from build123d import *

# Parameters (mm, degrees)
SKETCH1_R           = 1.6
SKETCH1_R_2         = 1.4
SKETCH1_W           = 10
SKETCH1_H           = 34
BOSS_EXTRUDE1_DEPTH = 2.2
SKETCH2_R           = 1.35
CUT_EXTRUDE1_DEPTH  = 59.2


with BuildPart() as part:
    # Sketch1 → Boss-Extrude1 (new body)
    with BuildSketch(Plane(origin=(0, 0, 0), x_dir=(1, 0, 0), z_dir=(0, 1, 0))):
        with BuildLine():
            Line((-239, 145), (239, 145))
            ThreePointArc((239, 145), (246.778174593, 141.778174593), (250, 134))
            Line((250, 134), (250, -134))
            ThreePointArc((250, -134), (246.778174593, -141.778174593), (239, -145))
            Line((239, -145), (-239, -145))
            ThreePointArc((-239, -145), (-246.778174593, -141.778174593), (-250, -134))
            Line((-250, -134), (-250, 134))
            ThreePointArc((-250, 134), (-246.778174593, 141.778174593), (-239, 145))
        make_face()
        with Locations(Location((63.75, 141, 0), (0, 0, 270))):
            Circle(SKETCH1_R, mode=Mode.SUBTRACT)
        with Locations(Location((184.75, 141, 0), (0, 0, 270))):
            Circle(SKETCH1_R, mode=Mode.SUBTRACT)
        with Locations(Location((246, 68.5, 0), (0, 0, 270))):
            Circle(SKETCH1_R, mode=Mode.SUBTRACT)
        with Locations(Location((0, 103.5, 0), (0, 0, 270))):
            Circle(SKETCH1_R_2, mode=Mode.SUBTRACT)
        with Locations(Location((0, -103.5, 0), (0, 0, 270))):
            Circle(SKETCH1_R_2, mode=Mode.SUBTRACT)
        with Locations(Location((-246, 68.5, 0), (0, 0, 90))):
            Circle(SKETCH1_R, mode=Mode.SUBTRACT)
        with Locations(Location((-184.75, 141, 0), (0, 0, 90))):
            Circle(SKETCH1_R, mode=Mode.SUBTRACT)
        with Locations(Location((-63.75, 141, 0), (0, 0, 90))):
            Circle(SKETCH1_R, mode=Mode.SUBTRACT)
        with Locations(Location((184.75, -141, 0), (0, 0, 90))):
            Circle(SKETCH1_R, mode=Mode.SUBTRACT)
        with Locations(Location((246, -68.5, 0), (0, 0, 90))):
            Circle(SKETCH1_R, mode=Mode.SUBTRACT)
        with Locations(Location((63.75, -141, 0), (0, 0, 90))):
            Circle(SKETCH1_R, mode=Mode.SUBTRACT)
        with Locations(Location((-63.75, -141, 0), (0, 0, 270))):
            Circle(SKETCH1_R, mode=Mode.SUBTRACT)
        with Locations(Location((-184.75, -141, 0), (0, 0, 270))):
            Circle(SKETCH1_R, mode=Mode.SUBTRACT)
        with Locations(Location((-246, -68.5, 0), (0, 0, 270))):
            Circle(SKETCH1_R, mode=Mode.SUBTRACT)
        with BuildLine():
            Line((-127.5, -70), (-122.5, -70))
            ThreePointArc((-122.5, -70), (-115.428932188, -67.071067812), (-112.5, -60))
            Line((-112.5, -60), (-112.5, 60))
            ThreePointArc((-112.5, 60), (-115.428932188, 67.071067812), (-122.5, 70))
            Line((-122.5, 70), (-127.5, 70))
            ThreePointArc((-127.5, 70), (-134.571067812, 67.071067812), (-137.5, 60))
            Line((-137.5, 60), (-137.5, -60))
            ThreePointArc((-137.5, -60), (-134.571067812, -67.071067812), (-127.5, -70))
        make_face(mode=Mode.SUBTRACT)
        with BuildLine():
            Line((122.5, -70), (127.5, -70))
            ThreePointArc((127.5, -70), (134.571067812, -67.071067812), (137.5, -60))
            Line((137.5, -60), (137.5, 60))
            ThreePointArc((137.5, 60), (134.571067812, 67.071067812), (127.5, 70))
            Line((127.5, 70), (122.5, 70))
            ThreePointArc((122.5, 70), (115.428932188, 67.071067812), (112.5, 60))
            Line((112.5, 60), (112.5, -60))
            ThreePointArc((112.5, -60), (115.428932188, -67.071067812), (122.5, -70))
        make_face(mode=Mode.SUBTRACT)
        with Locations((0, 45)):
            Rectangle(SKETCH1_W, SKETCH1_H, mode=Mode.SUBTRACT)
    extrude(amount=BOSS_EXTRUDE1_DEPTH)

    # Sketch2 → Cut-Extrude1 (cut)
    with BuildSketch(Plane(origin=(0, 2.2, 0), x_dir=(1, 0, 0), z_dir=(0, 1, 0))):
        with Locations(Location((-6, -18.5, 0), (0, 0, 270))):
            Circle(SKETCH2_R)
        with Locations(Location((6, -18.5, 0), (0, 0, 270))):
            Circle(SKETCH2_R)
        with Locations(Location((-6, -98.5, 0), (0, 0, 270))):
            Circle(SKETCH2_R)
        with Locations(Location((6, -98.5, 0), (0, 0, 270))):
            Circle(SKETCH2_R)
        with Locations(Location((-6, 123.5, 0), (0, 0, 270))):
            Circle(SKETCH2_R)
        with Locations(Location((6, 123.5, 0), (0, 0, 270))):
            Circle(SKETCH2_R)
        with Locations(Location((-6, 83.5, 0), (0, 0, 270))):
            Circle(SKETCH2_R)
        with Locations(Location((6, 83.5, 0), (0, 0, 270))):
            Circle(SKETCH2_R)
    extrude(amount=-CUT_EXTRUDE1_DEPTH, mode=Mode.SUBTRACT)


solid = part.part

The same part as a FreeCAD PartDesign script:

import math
import FreeCAD as App
import Part
import Sketcher
from FreeCAD import Vector


def add_polygon(sketch, points):
    """Adds a closed chain of lines whose ends are joined by coincident constraints."""
    first, n = sketch.GeometryCount, len(points)
    for a, b in zip(points, points[1:] + points[:1]):
        sketch.addGeometry(Part.LineSegment(App.Vector(*a, 0), App.Vector(*b, 0)), False)
    for i in range(n):
        sketch.addConstraint(Sketcher.Constraint("Coincident", first + i, 2, first + (i + 1) % n, 1))

doc = App.newDocument("Part")
body = doc.addObject("PartDesign::Body", "Body")

sketch1 = doc.addObject("Sketcher::SketchObject", "Sketch")
body.addObject(sketch1)
sketch1.AttachmentSupport = (doc.XZ_Plane, [""])
sketch1.MapMode = "FlatFace"
sketch1.addGeometry(Part.LineSegment(Vector(239, -145, 0), Vector(-239, -145, 0)), False)
sketch1.addGeometry(Part.ArcOfCircle(Part.Circle(Vector(-239, -134, 0), Vector(0, 0, 1), 11), math.radians(180), math.radians(270)), False)
sketch1.addGeometry(Part.LineSegment(Vector(-250, -134, 0), Vector(-250, 134, 0)), False)
sketch1.addGeometry(Part.ArcOfCircle(Part.Circle(Vector(-239, 134, 0), Vector(0, 0, 1), 11), math.radians(90), math.radians(180)), False)
sketch1.addGeometry(Part.LineSegment(Vector(-239, 145, 0), Vector(239, 145, 0)), False)
sketch1.addGeometry(Part.ArcOfCircle(Part.Circle(Vector(239, 134, 0), Vector(0, 0, 1), 11), math.radians(0), math.radians(90)), False)
sketch1.addGeometry(Part.LineSegment(Vector(250, 134, 0), Vector(250, -134, 0)), False)
sketch1.addGeometry(Part.ArcOfCircle(Part.Circle(Vector(239, -134, 0), Vector(0, 0, 1), 11), math.radians(-90), math.radians(0)), False)
sketch1.addGeometry(Part.Circle(Vector(184.75, 141, 0), Vector(0, 0, 1), 1.6), False)
sketch1.addGeometry(Part.Circle(Vector(63.75, 141, 0), Vector(0, 0, 1), 1.6), False)
sketch1.addGeometry(Part.Circle(Vector(246, 68.5, 0), Vector(0, 0, 1), 1.6), False)
sketch1.addGeometry(Part.Circle(Vector(-63.75, 141, 0), Vector(0, 0, 1), 1.6), False)
sketch1.addGeometry(Part.Circle(Vector(0, 103.5, 0), Vector(0, 0, 1), 1.4), False)
sketch1.addGeometry(Part.Circle(Vector(-184.75, 141, 0), Vector(0, 0, 1), 1.6), False)
sketch1.addGeometry(Part.Circle(Vector(-246, 68.5, 0), Vector(0, 0, 1), 1.6), False)
sketch1.addGeometry(Part.ArcOfCircle(Part.Circle(Vector(122.5, 60, 0), Vector(0, 0, 1), 10), math.radians(90), math.radians(180)), False)
sketch1.addGeometry(Part.LineSegment(Vector(112.5, 60, 0), Vector(112.5, -60, 0)), False)
sketch1.addGeometry(Part.ArcOfCircle(Part.Circle(Vector(122.5, -60, 0), Vector(0, 0, 1), 10), math.radians(180), math.radians(270)), False)
sketch1.addGeometry(Part.LineSegment(Vector(122.5, -70, 0), Vector(127.5, -70, 0)), False)
sketch1.addGeometry(Part.ArcOfCircle(Part.Circle(Vector(127.5, -60, 0), Vector(0, 0, 1), 10), math.radians(-90), math.radians(0)), False)
sketch1.addGeometry(Part.LineSegment(Vector(137.5, -60, 0), Vector(137.5, 60, 0)), False)
sketch1.addGeometry(Part.ArcOfCircle(Part.Circle(Vector(127.5, 60, 0), Vector(0, 0, 1), 10), math.radians(0), math.radians(90)), False)
sketch1.addGeometry(Part.LineSegment(Vector(127.5, 70, 0), Vector(122.5, 70, 0)), False)
sketch1.addGeometry(Part.Circle(Vector(246, -68.5, 0), Vector(0, 0, 1), 1.6), False)
sketch1.addGeometry(Part.Circle(Vector(184.75, -141, 0), Vector(0, 0, 1), 1.6), False)
sketch1.addGeometry(Part.Circle(Vector(63.75, -141, 0), Vector(0, 0, 1), 1.6), False)
add_polygon(sketch1, [(-5, -28), (-5, -62), (5, -62), (5, -28)])
sketch1.addGeometry(Part.ArcOfCircle(Part.Circle(Vector(-127.5, 60, 0), Vector(0, 0, 1), 10), math.radians(90), math.radians(180)), False)
sketch1.addGeometry(Part.LineSegment(Vector(-137.5, 60, 0), Vector(-137.5, -60, 0)), False)
sketch1.addGeometry(Part.ArcOfCircle(Part.Circle(Vector(-127.5, -60, 0), Vector(0, 0, 1), 10), math.radians(180), math.radians(270)), False)
sketch1.addGeometry(Part.LineSegment(Vector(-127.5, -70, 0), Vector(-122.5, -70, 0)), False)
sketch1.addGeometry(Part.ArcOfCircle(Part.Circle(Vector(-122.5, -60, 0), Vector(0, 0, 1), 10), math.radians(-90), math.radians(0)), False)
sketch1.addGeometry(Part.LineSegment(Vector(-112.5, -60, 0), Vector(-112.5, 60, 0)), False)
sketch1.addGeometry(Part.ArcOfCircle(Part.Circle(Vector(-122.5, 60, 0), Vector(0, 0, 1), 10), math.radians(0), math.radians(90)), False)
sketch1.addGeometry(Part.LineSegment(Vector(-122.5, 70, 0), Vector(-127.5, 70, 0)), False)
sketch1.addGeometry(Part.Circle(Vector(-246, -68.5, 0), Vector(0, 0, 1), 1.6), False)
sketch1.addGeometry(Part.Circle(Vector(0, -103.5, 0), Vector(0, 0, 1), 1.4), False)
sketch1.addGeometry(Part.Circle(Vector(-63.75, -141, 0), Vector(0, 0, 1), 1.6), False)
sketch1.addGeometry(Part.Circle(Vector(-184.75, -141, 0), Vector(0, 0, 1), 1.6), False)
sketch1.addConstraint([
    Sketcher.Constraint("Tangent", 0, 2, 1, 2),
    Sketcher.Constraint("Tangent", 1, 1, 2, 1),
    Sketcher.Constraint("Tangent", 2, 2, 3, 2),
    Sketcher.Constraint("Tangent", 3, 1, 4, 1),
    Sketcher.Constraint("Tangent", 4, 2, 5, 2),
    Sketcher.Constraint("Tangent", 5, 1, 6, 1),
    Sketcher.Constraint("Tangent", 6, 2, 7, 2),
    Sketcher.Constraint("Tangent", 7, 1, 0, 1),
    Sketcher.Constraint("Tangent", 15, 2, 16, 1),
    Sketcher.Constraint("Tangent", 16, 2, 17, 1),
    Sketcher.Constraint("Tangent", 17, 2, 18, 1),
    Sketcher.Constraint("Tangent", 18, 2, 19, 1),
    Sketcher.Constraint("Tangent", 19, 2, 20, 1),
    Sketcher.Constraint("Tangent", 20, 2, 21, 1),
    Sketcher.Constraint("Tangent", 21, 2, 22, 1),
    Sketcher.Constraint("Tangent", 22, 2, 15, 1),
    Sketcher.Constraint("Tangent", 30, 2, 31, 1),
    Sketcher.Constraint("Tangent", 31, 2, 32, 1),
    Sketcher.Constraint("Tangent", 32, 2, 33, 1),
    Sketcher.Constraint("Tangent", 33, 2, 34, 1),
    Sketcher.Constraint("Tangent", 34, 2, 35, 1),
    Sketcher.Constraint("Tangent", 35, 2, 36, 1),
    Sketcher.Constraint("Tangent", 36, 2, 37, 1),
    Sketcher.Constraint("Tangent", 37, 2, 30, 1),
    Sketcher.Constraint("Horizontal", 0),
    Sketcher.Constraint("Vertical", 2),
    Sketcher.Constraint("Horizontal", 4),
    Sketcher.Constraint("Vertical", 6),
    Sketcher.Constraint("Vertical", 16),
    Sketcher.Constraint("Horizontal", 18),
    Sketcher.Constraint("Vertical", 20),
    Sketcher.Constraint("Horizontal", 22),
    Sketcher.Constraint("Vertical", 26),
    Sketcher.Constraint("Horizontal", 27),
    Sketcher.Constraint("Vertical", 28),
    Sketcher.Constraint("Horizontal", 29),
    Sketcher.Constraint("Vertical", 31),
    Sketcher.Constraint("Horizontal", 33),
    Sketcher.Constraint("Vertical", 35),
    Sketcher.Constraint("Horizontal", 37),
    Sketcher.Constraint("Equal", 1, 3),
    Sketcher.Constraint("Equal", 3, 5),
    Sketcher.Constraint("Equal", 5, 7),
    Sketcher.Constraint("Equal", 8, 9),
    Sketcher.Constraint("Equal", 9, 10),
    Sketcher.Constraint("Equal", 10, 11),
    Sketcher.Constraint("Equal", 11, 13),
    Sketcher.Constraint("Equal", 13, 14),
    Sketcher.Constraint("Equal", 15, 17),
    Sketcher.Constraint("Equal", 17, 19),
    Sketcher.Constraint("Equal", 19, 21),
    Sketcher.Constraint("Equal", 14, 23),
    Sketcher.Constraint("Equal", 23, 24),
    Sketcher.Constraint("Equal", 24, 25),
    Sketcher.Constraint("Equal", 21, 30),
    Sketcher.Constraint("Equal", 30, 32),
    Sketcher.Constraint("Equal", 32, 34),
    Sketcher.Constraint("Equal", 34, 36),
    Sketcher.Constraint("Equal", 25, 38),
    Sketcher.Constraint("Equal", 12, 39),
    Sketcher.Constraint("Equal", 38, 40),
    Sketcher.Constraint("Equal", 40, 41),
    Sketcher.Constraint("Symmetric", 1, 3, 5, 3, -1, 1),
    Sketcher.Constraint("Symmetric", 14, 3, 23, 3, -1, 1),
    Sketcher.Constraint("Symmetric", 13, 3, 24, 3, -1, 1),
    Sketcher.Constraint("Symmetric", 11, 3, 25, 3, -1, 1),
    Sketcher.Constraint("Symmetric", 19, 3, 30, 3, -1, 1),
    Sketcher.Constraint("Symmetric", 15, 3, 34, 3, -1, 1),
    Sketcher.Constraint("Symmetric", 10, 3, 38, 3, -1, 1),
    Sketcher.Constraint("Symmetric", 12, 3, 39, 3, -1, 1),
    Sketcher.Constraint("Symmetric", 9, 3, 40, 3, -1, 1),
    Sketcher.Constraint("Symmetric", 8, 3, 41, 3, -1, 1),
    Sketcher.Constraint("Symmetric", 9, 3, 11, 3, -2),
    Sketcher.Constraint("Symmetric", 8, 3, 13, 3, -2),
    Sketcher.Constraint("Symmetric", 10, 3, 14, 3, -2),
    Sketcher.Constraint("PointOnObject", 12, 3, -2),
    Sketcher.Constraint("Horizontal", 8, 3, 9, 3),
    Sketcher.Constraint("Horizontal", 21, 3, 30, 3),
    Sketcher.Constraint("Radius", 1, 11.0),
    Sketcher.Constraint("Radius", 15, 10.0),
    Sketcher.Constraint("Diameter", 8, 3.2),
    Sketcher.Constraint("Diameter", 12, 2.8),
    Sketcher.Constraint("DistanceX", 0, 2, 0, 1, 478.0),
    Sketcher.Constraint("DistanceX", 18, 1, 18, 2, 5.0),
    Sketcher.Constraint("DistanceX", 27, 1, 27, 2, 10.0),
    Sketcher.Constraint("DistanceY", 2, 1, 2, 2, 268.0),
    Sketcher.Constraint("DistanceY", 16, 2, 16, 1, 120.0),
    Sketcher.Constraint("DistanceY", 26, 2, 26, 1, 34.0),
    Sketcher.Constraint("DistanceY", -1, 1, 8, 3, 141.0),
    Sketcher.Constraint("DistanceX", -1, 1, 10, 3, 246.0),
    Sketcher.Constraint("DistanceX", 26, 2, -1, 1, 5.0),
    Sketcher.Constraint("DistanceY", 26, 2, -1, 1, 62.0),
    Sketcher.Constraint("DistanceX", 9, 3, 8, 3, 121.0),
    Sketcher.Constraint("DistanceY", 14, 3, 12, 3, 35.0),
    Sketcher.Constraint("DistanceY", 23, 3, 10, 3, 137.0),
    Sketcher.Constraint("DistanceX", -1, 1, 15, 3, 122.5),
    Sketcher.Constraint("DistanceX", 11, 3, 9, 3, 127.5),
])
pad1 = doc.addObject("PartDesign::Pad", "Pad")
body.addObject(pad1)
pad1.Profile = sketch1
pad1.Length = 2.2
pad1.Reversed = True

sketch2 = doc.addObject("Sketcher::SketchObject", "Sketch001")
body.addObject(sketch2)
sketch2.AttachmentSupport = (doc.XZ_Plane, [""])
sketch2.MapMode = "FlatFace"
sketch2.AttachmentOffset = App.Placement(Vector(0, 0, -2.2), App.Rotation())
sketch2.addGeometry([
    Part.Circle(Vector(-6, 18.5, 0), Vector(0, 0, 1), 1.35),
    Part.Circle(Vector(6, 18.5, 0), Vector(0, 0, 1), 1.35),
    Part.Circle(Vector(-6, 98.5, 0), Vector(0, 0, 1), 1.35),
    Part.Circle(Vector(6, 98.5, 0), Vector(0, 0, 1), 1.35),
    Part.Circle(Vector(-6, -123.5, 0), Vector(0, 0, 1), 1.35),
    Part.Circle(Vector(6, -123.5, 0), Vector(0, 0, 1), 1.35),
    Part.Circle(Vector(-6, -83.5, 0), Vector(0, 0, 1), 1.35),
    Part.Circle(Vector(6, -83.5, 0), Vector(0, 0, 1), 1.35),
], False)
sketch2.addConstraint([
    Sketcher.Constraint("Equal", 0, 1),
    Sketcher.Constraint("Equal", 1, 2),
    Sketcher.Constraint("Equal", 2, 3),
    Sketcher.Constraint("Equal", 3, 4),
    Sketcher.Constraint("Equal", 4, 5),
    Sketcher.Constraint("Equal", 5, 6),
    Sketcher.Constraint("Equal", 6, 7),
    Sketcher.Constraint("Symmetric", 0, 3, 1, 3, -2),
    Sketcher.Constraint("Symmetric", 2, 3, 3, 3, -2),
    Sketcher.Constraint("Symmetric", 4, 3, 5, 3, -2),
    Sketcher.Constraint("Symmetric", 6, 3, 7, 3, -2),
    Sketcher.Constraint("Vertical", 0, 3, 2, 3),
    Sketcher.Constraint("Vertical", 2, 3, 4, 3),
    Sketcher.Constraint("Vertical", 4, 3, 6, 3),
    Sketcher.Constraint("Diameter", 0, 2.7),
    Sketcher.Constraint("DistanceX", 0, 3, -1, 1, 6.0),
    Sketcher.Constraint("DistanceY", 0, 3, 2, 3, 80.0),
    Sketcher.Constraint("DistanceY", 4, 3, 0, 3, 142.0),
    Sketcher.Constraint("DistanceY", 4, 3, 6, 3, 40.0),
    Sketcher.Constraint("DistanceY", -1, 1, 0, 3, 18.5),
])
pocket1 = doc.addObject("PartDesign::Pocket", "Pocket")
body.addObject(pocket1)
pocket1.Profile = sketch2
pocket1.Length = 59.2
pocket1.Reversed = True

doc.recompute()
